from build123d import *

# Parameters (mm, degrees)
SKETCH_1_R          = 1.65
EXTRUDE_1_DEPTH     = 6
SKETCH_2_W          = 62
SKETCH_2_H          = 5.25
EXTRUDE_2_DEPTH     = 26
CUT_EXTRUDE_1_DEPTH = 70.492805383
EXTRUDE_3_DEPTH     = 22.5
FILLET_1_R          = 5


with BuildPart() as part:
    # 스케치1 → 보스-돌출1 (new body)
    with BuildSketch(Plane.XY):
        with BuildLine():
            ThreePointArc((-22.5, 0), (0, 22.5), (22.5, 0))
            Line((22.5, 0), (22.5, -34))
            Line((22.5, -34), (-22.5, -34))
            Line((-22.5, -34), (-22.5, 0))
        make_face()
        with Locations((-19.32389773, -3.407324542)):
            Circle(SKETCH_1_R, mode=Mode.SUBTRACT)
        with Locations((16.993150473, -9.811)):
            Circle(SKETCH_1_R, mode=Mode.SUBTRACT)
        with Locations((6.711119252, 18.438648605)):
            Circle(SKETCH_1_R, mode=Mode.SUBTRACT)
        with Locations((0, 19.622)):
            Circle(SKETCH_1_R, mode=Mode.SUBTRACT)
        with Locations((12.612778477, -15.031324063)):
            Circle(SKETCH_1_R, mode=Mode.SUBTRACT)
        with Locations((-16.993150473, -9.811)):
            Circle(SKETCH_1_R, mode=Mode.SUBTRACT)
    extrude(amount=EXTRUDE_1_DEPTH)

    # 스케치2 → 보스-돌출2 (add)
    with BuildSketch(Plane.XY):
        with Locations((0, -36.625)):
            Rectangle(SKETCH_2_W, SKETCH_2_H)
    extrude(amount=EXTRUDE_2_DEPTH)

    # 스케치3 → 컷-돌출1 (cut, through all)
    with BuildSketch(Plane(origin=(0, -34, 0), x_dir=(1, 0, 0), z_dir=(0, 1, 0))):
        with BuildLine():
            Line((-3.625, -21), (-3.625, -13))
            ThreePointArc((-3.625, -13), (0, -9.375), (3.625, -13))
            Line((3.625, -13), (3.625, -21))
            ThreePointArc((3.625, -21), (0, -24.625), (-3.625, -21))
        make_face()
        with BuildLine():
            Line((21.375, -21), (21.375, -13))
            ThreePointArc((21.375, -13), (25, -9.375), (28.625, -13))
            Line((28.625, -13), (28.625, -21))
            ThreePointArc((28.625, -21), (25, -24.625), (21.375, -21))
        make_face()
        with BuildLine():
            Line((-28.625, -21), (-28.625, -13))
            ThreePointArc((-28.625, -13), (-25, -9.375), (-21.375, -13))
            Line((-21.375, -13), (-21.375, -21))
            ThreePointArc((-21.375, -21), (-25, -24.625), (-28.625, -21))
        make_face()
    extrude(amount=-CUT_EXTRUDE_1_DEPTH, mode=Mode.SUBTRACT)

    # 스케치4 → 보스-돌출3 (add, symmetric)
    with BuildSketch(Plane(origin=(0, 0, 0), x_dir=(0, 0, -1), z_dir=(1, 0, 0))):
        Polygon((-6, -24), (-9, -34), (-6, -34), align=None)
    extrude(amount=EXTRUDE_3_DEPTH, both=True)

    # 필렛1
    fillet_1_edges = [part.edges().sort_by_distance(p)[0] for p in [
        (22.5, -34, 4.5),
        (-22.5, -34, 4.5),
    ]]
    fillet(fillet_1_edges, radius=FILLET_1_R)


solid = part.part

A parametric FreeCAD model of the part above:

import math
import FreeCAD as App
import Part
import Sketcher
from FreeCAD import Vector
Q = App.Units.Quantity


def edges_at(feature, points):
    """Names of the edges that pass closest to the given points."""
    edges = feature.Shape.Edges
    near = lambda p: min(range(len(edges)), key=lambda i: edges[i].distToShape(Part.Vertex(*p))[0])
    return sorted({f"Edge{near(p) + 1}" for p in points})

doc = App.newDocument("Part")
params = doc.addObject("Spreadsheet::Sheet", "Params")
for row, (alias, value) in enumerate([
    ("sketch1_diameter", "3.3 mm"),
    ("sketch1_radius", "22.5 mm"),
    ("sketch1_height", "34 mm"),
    ("pad1_length", "6 mm"),
    ("sketch2_width", "62 mm"),
    ("sketch2_height", "5.25 mm"),
    ("pad2_length", "26 mm"),
    ("sketch3_height", "8 mm"),
    ("sketch4_width", "10 mm"),
    ("sketch4_height", "3 mm"),
    ("pad3_length", "45 mm"),
    ("fillet_radius", "5 mm"),
], start=1):
    params.set(f"A{row}", alias)
    params.set(f"B{row}", "=" + value)
    params.setAlias(f"B{row}", alias)

body = doc.addObject("PartDesign::Body", "Body")

# Sketch on XY plane
sketch1 = doc.addObject("Sketcher::SketchObject", "Sketch")
body.addObject(sketch1)
sketch1.AttachmentSupport = (doc.XY_Plane, [""])
sketch1.MapMode = "FlatFace"
sketch1.addGeometry(Part.ArcOfCircle(Part.Circle(Vector(0, 0, 0), Vector(0, 0, 1), 22.5), math.radians(0), math.radians(180)), False)
sketch1.addGeometry(Part.LineSegment(Vector(-22.5, 0, 0), Vector(-22.5, -34, 0)), False)
sketch1.addGeometry(Part.LineSegment(Vector(-22.5, -34, 0), Vector(22.5, -34, 0)), False)
sketch1.addGeometry(Part.LineSegment(Vector(22.5, -34, 0), Vector(22.5, 0, 0)), False)
sketch1.addGeometry(Part.Circle(Vector(12.6, -15, 0), Vector(0, 0, 1), 1.6), False)
sketch1.addGeometry(Part.Circle(Vector(17, -9.8, 0), Vector(0, 0, 1), 1.6), False)
sketch1.addGeometry(Part.Circle(Vector(-17, -9.8, 0), Vector(0, 0, 1), 1.6), False)
sketch1.addGeometry(Part.Circle(Vector(-19.3, -3.4, 0), Vector(0, 0, 1), 1.6), False)
sketch1.addGeometry(Part.Circle(Vector(6.7, 18.4, 0), Vector(0, 0, 1), 1.6), False)
sketch1.addGeometry(Part.Circle(Vector(0, 19.6, 0), Vector(0, 0, 1), 1.6), False)
sketch1.addConstraint(Sketcher.Constraint("Tangent", 0, 2, 1, 1))
sketch1.addConstraint(Sketcher.Constraint("Coincident", 1, 2, 2, 1))
sketch1.addConstraint(Sketcher.Constraint("Coincident", 2, 2, 3, 1))
sketch1.addConstraint(Sketcher.Constraint("Tangent", 3, 2, 0, 1))
sketch1.addConstraint(Sketcher.Constraint("Vertical", 1))
sketch1.addConstraint(Sketcher.Constraint("Horizontal", 2))
sketch1.addConstraint(Sketcher.Constraint("Vertical", 3))
sketch1.addConstraint(Sketcher.Constraint("Coincident", 0, 3, -1, 1))
sketch1.addConstraint(Sketcher.Constraint("Equal", 4, 5))
sketch1.addConstraint(Sketcher.Constraint("Equal", 5, 6))
sketch1.addConstraint(Sketcher.Constraint("Equal", 6, 7))
sketch1.addConstraint(Sketcher.Constraint("Equal", 7, 8))
sketch1.addConstraint(Sketcher.Constraint("Equal", 8, 9))
sketch1.addConstraint(Sketcher.Constraint("Symmetric", 5, 3, 6, 3, -2))
sketch1.addConstraint(Sketcher.Constraint("PointOnObject", 9, 3, -2))
sketch1.addConstraint(Sketcher.Constraint("Diameter", 4, Q("3.3 mm")))
sketch1.addConstraint(Sketcher.Constraint("Radius", 0, Q("22.5 mm")))
sketch1.addConstraint(Sketcher.Constraint("DistanceY", 1, 2, 1, 1, Q("34 mm")))
sketch1.addConstraint(Sketcher.Constraint("DistanceY", 5, 3, -1, 1, Q("9.811 mm")))
sketch1.addConstraint(Sketcher.Constraint("DistanceY", -1, 1, 9, 3, Q("19.622 mm")))
sketch1.addConstraint(Sketcher.Constraint("DistanceY", 4, 3, 7, 3, Q("11.624 mm")))
sketch1.addConstraint(Sketcher.Constraint("DistanceX", 6, 3, 5, 3, Q("33.986301 mm")))
sketch1.addConstraint(Sketcher.Constraint("DistanceX", -1, 1, 4, 3, Q("12.612778 mm")))
sketch1.addConstraint(Sketcher.Constraint("DistanceX", -1, 1, 8, 3, Q("6.711119 mm")))
sketch1.addConstraint(Sketcher.Constraint("DistanceY", -1, 1, 8, 3, Q("18.438649 mm")))
sketch1.addConstraint(Sketcher.Constraint("DistanceX", 7, 3, 5, 3, Q("36.317048 mm")))
sketch1.addConstraint(Sketcher.Constraint("DistanceY", 4, 3, -1, 1, Q("15.031324 mm")))
sketch1.setExpression("Constraints[15]", "Params.sketch1_diameter")
sketch1.setExpression("Constraints[16]", "Params.sketch1_radius")
sketch1.setExpression("Constraints[17]", "Params.sketch1_height")
pad1 = doc.addObject("PartDesign::Pad", "Pad")
body.addObject(pad1)
pad1.Profile = sketch1
pad1.setExpression("Length", "Params.pad1_length")

# Sketch on XY plane
sketch2 = doc.addObject("Sketcher::SketchObject", "Sketch001")
body.addObject(sketch2)
sketch2.AttachmentSupport = (doc.XY_Plane, [""])
sketch2.MapMode = "FlatFace"
sketch2.addGeometry(Part.LineSegment(Vector(-31, -34, 0), Vector(-31, -39, 0)), False)
sketch2.addGeometry(Part.LineSegment(Vector(-31, -39, 0), Vector(31, -39, 0)), False)
sketch2.addGeometry(Part.LineSegment(Vector(31, -39, 0), Vector(31, -34, 0)), False)
sketch2.addGeometry(Part.LineSegment(Vector(31, -34, 0), Vector(-31, -34, 0)), False)
sketch2.addConstraint(Sketcher.Constraint("Coincident", 0, 2, 1, 1))
sketch2.addConstraint(Sketcher.Constraint("Coincident", 1, 2, 2, 1))
sketch2.addConstraint(Sketcher.Constraint("Coincident", 2, 2, 3, 1))
sketch2.addConstraint(Sketcher.Constraint("Coincident", 3, 2, 0, 1))
sketch2.addConstraint(Sketcher.Constraint("Vertical", 0))
sketch2.addConstraint(Sketcher.Constraint("Horizontal", 1))
sketch2.addConstraint(Sketcher.Constraint("Vertical", 2))
sketch2.addConstraint(Sketcher.Constraint("Horizontal", 3))
sketch2.addConstraint(Sketcher.Constraint("DistanceX", 1, 1, 1, 2, Q("62 mm")))
sketch2.addConstraint(Sketcher.Constraint("DistanceX", 0, 2, -1, 1, Q("31 mm")))
sketch2.addConstraint(Sketcher.Constraint("DistanceY", 2, 2, -1, 1, Q("34 mm")))
sketch2.addConstraint(Sketcher.Constraint("DistanceY", 0, 2, 0, 1, Q("5.25 mm")))
sketch2.setExpression("Constraints[8]", "Params.sketch2_width")
sketch2.setExpression("Constraints[11]", "Params.sketch2_height")
pad2 = doc.addObject("PartDesign::Pad", "Pad001")
body.addObject(pad2)
pad2.Profile = sketch2
pad2.setExpression("Length", "Params.pad2_length")

# Sketch on XZ plane
sketch3 = doc.addObject("Sketcher::SketchObject", "Sketch002")
body.addObject(sketch3)
sketch3.AttachmentSupport = (doc.XZ_Plane, [""])
sketch3.MapMode = "FlatFace"
sketch3.AttachmentOffset = App.Placement(Vector(0, 0, 34), App.Rotation())
sketch3.addGeometry(Part.LineSegment(Vector(-3.6, 13, 0), Vector(-3.6, 21, 0)), False)
sketch3.addGeometry(Part.ArcOfCircle(Part.Circle(Vector(0, 21, 0), Vector(0, 0, 1), 3.6), math.radians(0), math.radians(180)), False)
sketch3.addGeometry(Part.LineSegment(Vector(3.6, 21, 0), Vector(3.6, 13, 0)), False)
sketch3.addGeometry(Part.ArcOfCircle(Part.Circle(Vector(0, 13, 0), Vector(0, 0, 1), 3.6), math.radians(180), math.radians(360)), False)
sketch3.addGeometry(Part.LineSegment(Vector(21.4, 13, 0), Vector(21.4, 21, 0)), False)
sketch3.addGeometry(Part.ArcOfCircle(Part.Circle(Vector(25, 21, 0), Vector(0, 0, 1), 3.6), math.radians(0), math.radians(180)), False)
sketch3.addGeometry(Part.LineSegment(Vector(28.6, 21, 0), Vector(28.6, 13, 0)), False)
sketch3.addGeometry(Part.ArcOfCircle(Part.Circle(Vector(25, 13, 0), Vector(0, 0, 1), 3.6), math.radians(180), math.radians(360)), False)
sketch3.addGeometry(Part.LineSegment(Vector(-28.6, 13, 0), Vector(-28.6, 21, 0)), False)
sketch3.addGeometry(Part.ArcOfCircle(Part.Circle(Vector(-25, 21, 0), Vector(0, 0, 1), 3.6), math.radians(0), math.radians(180)), False)
sketch3.addGeometry(Part.LineSegment(Vector(-21.4, 21, 0), Vector(-21.4, 13, 0)), False)
sketch3.addGeometry(Part.ArcOfCircle(Part.Circle(Vector(-25, 13, 0), Vector(0, 0, 1), 3.6), math.radians(180), math.radians(360)), False)
sketch3.addConstraint(Sketcher.Constraint("Tangent", 0, 2, 1, 2))
sketch3.addConstraint(Sketcher.Constraint("Tangent", 1, 1, 2, 1))
sketch3.addConstraint(Sketcher.Constraint("Tangent", 2, 2, 3, 2))
sketch3.addConstraint(Sketcher.Constraint("Tangent", 3, 1, 0, 1))
sketch3.addConstraint(Sketcher.Constraint("Tangent", 4, 2, 5, 2))
sketch3.addConstraint(Sketcher.Constraint("Tangent", 5, 1, 6, 1))
sketch3.addConstraint(Sketcher.Constraint("Tangent", 6, 2, 7, 2))
sketch3.addConstraint(Sketcher.Constraint("Tangent", 7, 1, 4, 1))
sketch3.addConstraint(Sketcher.Constraint("Tangent", 8, 2, 9, 2))
sketch3.addConstraint(Sketcher.Constraint("Tangent", 9, 1, 10, 1))
sketch3.addConstraint(Sketcher.Constraint("Tangent", 10, 2, 11, 2))
sketch3.addConstraint(Sketcher.Constraint("Tangent", 11, 1, 8, 1))
sketch3.addConstraint(Sketcher.Constraint("Vertical", 0))
sketch3.addConstraint(Sketcher.Constraint("Vertical", 2))
sketch3.addConstraint(Sketcher.Constraint("Vertical", 4))
sketch3.addConstraint(Sketcher.Constraint("Vertical", 6))
sketch3.addConstraint(Sketcher.Constraint("Vertical", 8))
sketch3.addConstraint(Sketcher.Constraint("Vertical", 10))
sketch3.addConstraint(Sketcher.Constraint("Equal", 3, 5))
sketch3.addConstraint(Sketcher.Constraint("Equal", 7, 9))
sketch3.addConstraint(Sketcher.Constraint("Symmetric", 5, 3, 9, 3, -2))
sketch3.addConstraint(Sketcher.Constraint("PointOnObject", 1, 3, -2))
sketch3.addConstraint(Sketcher.Constraint("Horizontal", 1, 3, 5, 3))
sketch3.addConstraint(Sketcher.Constraint("Horizontal", 3, 3, 7, 3))
sketch3.addConstraint(Sketcher.Constraint("Horizontal", 7, 3, 11, 3))
sketch3.addConstraint(Sketcher.Constraint("DistanceY", 0, 1, 0, 2, Q("8 mm")))
sketch3.addConstraint(Sketcher.Constraint("DistanceY", -1, 1, 1, 3, Q("21 mm")))
sketch3.addConstraint(Sketcher.Constraint("DistanceX", -1, 1, 5, 3, Q("25 mm")))
sketch3.addConstraint(Sketcher.Constraint("Radius", 1, Q("3.625 mm")))
sketch3.setExpression("Constraints[25]", "Params.sketch3_height")
pocket1 = doc.addObject("PartDesign::Pocket", "Pocket")
body.addObject(pocket1)
pocket1.Profile = sketch3
pocket1.Type = "ThroughAll"
pocket1.Reversed = True

# Sketch on YZ plane
sketch4 = doc.addObject("Sketcher::SketchObject", "Sketch003")
body.addObject(sketch4)
sketch4.AttachmentSupport = (doc.YZ_Plane, [""])
sketch4.MapMode = "FlatFace"
sketch4.addGeometry(Part.LineSegment(Vector(-24, 6, 0), Vector(-34, 9, 0)), False)
sketch4.addGeometry(Part.LineSegment(Vector(-34, 9, 0), Vector(-34, 6, 0)), False)
sketch4.addGeometry(Part.LineSegment(Vector(-34, 6, 0), Vector(-24, 6, 0)), False)
sketch4.addConstraint(Sketcher.Constraint("Coincident", 0, 2, 1, 1))
sketch4.addConstraint(Sketcher.Constraint("Coincident", 1, 2, 2, 1))
sketch4.addConstraint(Sketcher.Constraint("Coincident", 2, 2, 0, 1))
sketch4.addConstraint(Sketcher.Constraint("Vertical", 1))
sketch4.addConstraint(Sketcher.Constraint("Horizontal", 2))
sketch4.addConstraint(Sketcher.Constraint("DistanceX", 2, 1, 2, 2, Q("10 mm")))
sketch4.addConstraint(Sketcher.Constraint("DistanceY", 1, 2, 1, 1, Q("3 mm")))
sketch4.addConstraint(Sketcher.Constraint("DistanceX", 0, 2, -1, 1, Q("34 mm")))
sketch4.addConstraint(Sketcher.Constraint("DistanceY", -1, 1, 0, 2, Q("9 mm")))
sketch4.setExpression("Constraints[5]", "Params.sketch4_width")
sketch4.setExpression("Constraints[6]", "Params.sketch4_height")
pad3 = doc.addObject("PartDesign::Pad", "Pad002")
body.addObject(pad3)
pad3.Profile = sketch4
pad3.setExpression("Length", "Params.pad3_length")
pad3.Midplane = True
doc.recompute()

fillet = doc.addObject("PartDesign::Fillet", "Fillet")
body.addObject(fillet)
fillet.Base = (pad3, edges_at(pad3, [(22.5, -34, 4.5), (-22.5, -34, 4.5)]))
fillet.setExpression("Radius", "Params.fillet_radius")

doc.recompute()
